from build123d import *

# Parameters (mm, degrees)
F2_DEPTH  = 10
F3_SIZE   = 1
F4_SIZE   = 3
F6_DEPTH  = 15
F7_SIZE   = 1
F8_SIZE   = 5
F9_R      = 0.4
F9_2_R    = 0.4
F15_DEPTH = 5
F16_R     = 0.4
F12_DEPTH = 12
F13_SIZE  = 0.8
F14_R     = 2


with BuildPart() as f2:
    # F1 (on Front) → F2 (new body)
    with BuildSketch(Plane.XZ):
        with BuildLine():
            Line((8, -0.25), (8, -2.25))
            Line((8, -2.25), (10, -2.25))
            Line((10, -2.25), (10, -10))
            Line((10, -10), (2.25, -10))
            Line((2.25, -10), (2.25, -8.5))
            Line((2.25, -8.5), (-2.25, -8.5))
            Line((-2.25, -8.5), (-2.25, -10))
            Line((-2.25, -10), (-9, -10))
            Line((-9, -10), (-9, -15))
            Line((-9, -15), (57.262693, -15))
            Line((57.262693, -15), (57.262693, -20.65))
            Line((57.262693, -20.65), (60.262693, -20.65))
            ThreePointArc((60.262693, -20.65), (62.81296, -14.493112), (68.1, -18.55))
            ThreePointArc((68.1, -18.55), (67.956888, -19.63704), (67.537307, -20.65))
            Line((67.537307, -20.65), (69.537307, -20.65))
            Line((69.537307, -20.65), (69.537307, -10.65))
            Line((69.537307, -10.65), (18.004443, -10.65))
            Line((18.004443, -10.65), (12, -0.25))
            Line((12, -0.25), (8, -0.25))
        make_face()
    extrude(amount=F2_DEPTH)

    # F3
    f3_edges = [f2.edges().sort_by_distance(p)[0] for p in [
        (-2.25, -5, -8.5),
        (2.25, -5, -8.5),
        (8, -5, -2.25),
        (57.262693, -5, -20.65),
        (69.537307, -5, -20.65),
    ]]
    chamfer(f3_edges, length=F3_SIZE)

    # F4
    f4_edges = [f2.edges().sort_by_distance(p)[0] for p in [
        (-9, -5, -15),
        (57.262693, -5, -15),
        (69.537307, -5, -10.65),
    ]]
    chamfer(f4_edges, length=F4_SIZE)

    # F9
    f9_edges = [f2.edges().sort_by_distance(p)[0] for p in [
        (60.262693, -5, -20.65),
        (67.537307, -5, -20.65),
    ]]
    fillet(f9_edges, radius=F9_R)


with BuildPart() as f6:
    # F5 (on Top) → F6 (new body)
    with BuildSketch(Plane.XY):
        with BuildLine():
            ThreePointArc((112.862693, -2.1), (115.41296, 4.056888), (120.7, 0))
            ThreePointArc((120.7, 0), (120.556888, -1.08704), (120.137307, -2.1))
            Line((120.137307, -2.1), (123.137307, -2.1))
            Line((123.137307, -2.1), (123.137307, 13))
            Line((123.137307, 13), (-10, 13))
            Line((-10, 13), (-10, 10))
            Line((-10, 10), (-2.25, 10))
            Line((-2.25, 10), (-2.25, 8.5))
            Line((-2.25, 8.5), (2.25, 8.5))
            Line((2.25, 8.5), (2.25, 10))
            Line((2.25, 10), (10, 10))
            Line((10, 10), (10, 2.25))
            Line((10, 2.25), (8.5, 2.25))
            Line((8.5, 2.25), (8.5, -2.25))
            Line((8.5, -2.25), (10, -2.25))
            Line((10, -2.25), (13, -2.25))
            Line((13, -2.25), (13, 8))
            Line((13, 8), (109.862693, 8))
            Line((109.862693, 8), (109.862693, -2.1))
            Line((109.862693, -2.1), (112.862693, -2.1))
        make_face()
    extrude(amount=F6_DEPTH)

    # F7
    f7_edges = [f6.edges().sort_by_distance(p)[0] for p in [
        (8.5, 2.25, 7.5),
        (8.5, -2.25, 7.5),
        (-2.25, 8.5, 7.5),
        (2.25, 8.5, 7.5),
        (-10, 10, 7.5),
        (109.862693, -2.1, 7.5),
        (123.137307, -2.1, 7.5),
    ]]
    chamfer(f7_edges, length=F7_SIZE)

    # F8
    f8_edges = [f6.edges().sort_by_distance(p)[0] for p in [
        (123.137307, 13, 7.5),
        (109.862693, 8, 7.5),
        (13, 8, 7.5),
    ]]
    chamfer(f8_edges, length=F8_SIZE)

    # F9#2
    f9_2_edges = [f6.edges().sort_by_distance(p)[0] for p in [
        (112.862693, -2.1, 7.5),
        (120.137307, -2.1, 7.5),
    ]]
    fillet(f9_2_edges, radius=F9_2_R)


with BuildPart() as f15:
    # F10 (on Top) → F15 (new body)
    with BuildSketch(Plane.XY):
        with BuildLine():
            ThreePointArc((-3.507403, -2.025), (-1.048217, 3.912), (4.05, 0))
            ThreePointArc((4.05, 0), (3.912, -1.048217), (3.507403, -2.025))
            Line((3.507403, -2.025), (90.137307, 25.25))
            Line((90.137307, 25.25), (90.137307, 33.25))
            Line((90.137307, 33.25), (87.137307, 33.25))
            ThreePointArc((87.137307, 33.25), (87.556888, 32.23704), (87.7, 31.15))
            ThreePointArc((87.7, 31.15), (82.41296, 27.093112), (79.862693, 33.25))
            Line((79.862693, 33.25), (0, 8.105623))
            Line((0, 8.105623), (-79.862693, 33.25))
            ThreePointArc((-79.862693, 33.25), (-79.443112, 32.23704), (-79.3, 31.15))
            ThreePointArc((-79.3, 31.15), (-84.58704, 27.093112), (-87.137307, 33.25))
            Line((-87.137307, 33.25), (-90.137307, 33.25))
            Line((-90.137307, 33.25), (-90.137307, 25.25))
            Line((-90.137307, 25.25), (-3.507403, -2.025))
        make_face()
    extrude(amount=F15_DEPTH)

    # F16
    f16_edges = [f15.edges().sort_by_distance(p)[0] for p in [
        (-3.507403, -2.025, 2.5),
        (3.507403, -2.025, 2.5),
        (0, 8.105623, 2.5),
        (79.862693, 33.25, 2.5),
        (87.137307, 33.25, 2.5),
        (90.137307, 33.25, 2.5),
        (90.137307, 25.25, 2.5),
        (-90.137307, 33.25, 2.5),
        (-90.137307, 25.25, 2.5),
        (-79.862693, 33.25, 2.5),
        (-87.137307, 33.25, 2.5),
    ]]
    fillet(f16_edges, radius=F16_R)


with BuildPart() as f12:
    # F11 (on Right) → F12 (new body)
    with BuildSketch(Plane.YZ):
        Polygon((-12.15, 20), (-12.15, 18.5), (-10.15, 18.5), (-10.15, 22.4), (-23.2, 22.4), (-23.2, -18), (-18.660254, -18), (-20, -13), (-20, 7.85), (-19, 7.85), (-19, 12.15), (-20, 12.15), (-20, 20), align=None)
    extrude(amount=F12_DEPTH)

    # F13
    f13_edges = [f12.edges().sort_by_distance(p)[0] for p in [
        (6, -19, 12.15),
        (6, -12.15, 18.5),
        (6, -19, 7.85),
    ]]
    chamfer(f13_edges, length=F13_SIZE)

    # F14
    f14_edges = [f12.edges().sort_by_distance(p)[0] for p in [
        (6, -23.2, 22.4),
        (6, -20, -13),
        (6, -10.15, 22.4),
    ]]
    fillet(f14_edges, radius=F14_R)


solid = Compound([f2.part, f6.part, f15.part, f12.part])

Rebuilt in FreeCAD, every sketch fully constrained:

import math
import FreeCAD as App
import Part
import Sketcher
Q = App.Units.Quantity


def edges_at(feature, points):
    """Names of the edges that pass closest to the given points."""
    edges = feature.Shape.Edges
    near = lambda p: min(range(len(edges)), key=lambda i: edges[i].distToShape(Part.Vertex(*p))[0])
    return sorted({f"Edge{near(p) + 1}" for p in points})


def add_polygon(sketch, points):
    """Adds a closed chain of lines whose ends are joined by coincident constraints."""
    first, n = sketch.GeometryCount, len(points)
    for a, b in zip(points, points[1:] + points[:1]):
        sketch.addGeometry(Part.LineSegment(App.Vector(*a, 0), App.Vector(*b, 0)), False)
    for i in range(n):
        sketch.addConstraint(Sketcher.Constraint("Coincident", first + i, 2, first + (i + 1) % n, 1))

doc = App.newDocument("Part")
body = doc.addObject("PartDesign::Body", "Body")

sketch1 = body.newObject("Sketcher::SketchObject", "Sketch")
sketch1.AttachmentSupport = (doc.getObject("XZ_Plane"), [""])
sketch1.MapMode = "FlatFace"
sketch1.addGeometry([
    Part.LineSegment(App.Vector(8, -0.25, 0), App.Vector(8, -2.25, 0)),
    Part.LineSegment(App.Vector(8, -2.25, 0), App.Vector(10, -2.25, 0)),
    Part.LineSegment(App.Vector(10, -2.25, 0), App.Vector(10, -10, 0)),
    Part.LineSegment(App.Vector(10, -10, 0), App.Vector(2.25, -10, 0)),
    Part.LineSegment(App.Vector(2.25, -10, 0), App.Vector(2.25, -8.5, 0)),
    Part.LineSegment(App.Vector(2.25, -8.5, 0), App.Vector(-2.25, -8.5, 0)),
    Part.LineSegment(App.Vector(-2.25, -8.5, 0), App.Vector(-2.25, -10, 0)),
    Part.LineSegment(App.Vector(-2.25, -10, 0), App.Vector(-9, -10, 0)),
    Part.LineSegment(App.Vector(-9, -10, 0), App.Vector(-9, -15, 0)),
    Part.LineSegment(App.Vector(-9, -15, 0), App.Vector(57.262693, -15, 0)),
    Part.LineSegment(App.Vector(57.262693, -15, 0), App.Vector(57.262693, -20.65, 0)),
    Part.LineSegment(App.Vector(57.262693, -20.65, 0), App.Vector(60.262693, -20.65, 0)),
    Part.ArcOfCircle(Part.Circle(App.Vector(63.9, -18.55, 0), App.Vector(0, 0, 1), 4.2), math.radians(0.000007), math.radians(209.999992)),
    Part.ArcOfCircle(Part.Circle(App.Vector(63.899983, -18.549996, 0), App.Vector(0, 0, 1), 4.200017), math.radians(-29.999931), math.radians(-0.000054)),
    Part.LineSegment(App.Vector(67.537307, -20.65, 0), App.Vector(69.537307, -20.65, 0)),
    Part.LineSegment(App.Vector(69.537307, -20.65, 0), App.Vector(69.537307, -10.65, 0)),
    Part.LineSegment(App.Vector(69.537307, -10.65, 0), App.Vector(18.004443, -10.65, 0)),
    Part.LineSegment(App.Vector(18.004443, -10.65, 0), App.Vector(12, -0.25, 0)),
    Part.LineSegment(App.Vector(12, -0.25, 0), App.Vector(8, -0.25, 0)),
], False)
sketch1.addConstraint([
    Sketcher.Constraint("Coincident", 0, 2, 1, 1),
    Sketcher.Constraint("Coincident", 1, 2, 2, 1),
    Sketcher.Constraint("Coincident", 2, 2, 3, 1),
    Sketcher.Constraint("Coincident", 3, 2, 4, 1),
    Sketcher.Constraint("Coincident", 4, 2, 5, 1),
    Sketcher.Constraint("Coincident", 5, 2, 6, 1),
    Sketcher.Constraint("Coincident", 6, 2, 7, 1),
    Sketcher.Constraint("Coincident", 7, 2, 8, 1),
    Sketcher.Constraint("Coincident", 8, 2, 9, 1),
    Sketcher.Constraint("Coincident", 9, 2, 10, 1),
    Sketcher.Constraint("Coincident", 10, 2, 11, 1),
    Sketcher.Constraint("Coincident", 11, 2, 12, 2),
    Sketcher.Constraint("Tangent", 12, 1, 13, 2),
    Sketcher.Constraint("Coincident", 13, 1, 14, 1),
    Sketcher.Constraint("Coincident", 14, 2, 15, 1),
    Sketcher.Constraint("Coincident", 15, 2, 16, 1),
    Sketcher.Constraint("Coincident", 16, 2, 17, 1),
    Sketcher.Constraint("Coincident", 17, 2, 18, 1),
    Sketcher.Constraint("Coincident", 18, 2, 0, 1),
    Sketcher.Constraint("Vertical", 0),
    Sketcher.Constraint("Horizontal", 1),
    Sketcher.Constraint("Vertical", 2),
    Sketcher.Constraint("Horizontal", 3),
    Sketcher.Constraint("Vertical", 4),
    Sketcher.Constraint("Horizontal", 5),
    Sketcher.Constraint("Vertical", 6),
    Sketcher.Constraint("Horizontal", 7),
    Sketcher.Constraint("Vertical", 8),
    Sketcher.Constraint("Horizontal", 9),
    Sketcher.Constraint("Vertical", 10),
    Sketcher.Constraint("Horizontal", 11),
    Sketcher.Constraint("Horizontal", 14),
    Sketcher.Constraint("Vertical", 15),
    Sketcher.Constraint("Horizontal", 16),
    Sketcher.Constraint("Horizontal", 18),
    Sketcher.Constraint("Symmetric", 3, 2, 6, 2, -2),
    Sketcher.Constraint("Horizontal", 11, 2, 13, 1),
    Sketcher.Constraint("Equal", 1, 14),
    Sketcher.Constraint("Equal", 14, 0),
    Sketcher.Constraint("Equal", 3, 2),
    Sketcher.Constraint("Radius", 12, 4.2),
    Sketcher.Constraint("DistanceX", 1, 1, 1, 2, 2.0),
    Sketcher.Constraint("DistanceX", 11, 1, 11, 2, 3.0),
    Sketcher.Constraint("DistanceX", 18, 2, 18, 1, 4.0),
    Sketcher.Constraint("DistanceY", 8, 2, 8, 1, 5.0),
    Sketcher.Constraint("DistanceY", 15, 1, 15, 2, 10.0),
    Sketcher.Constraint("Angle", 17, Q("120.000001 deg")),
    Sketcher.Constraint("DistanceX", 5, 2, 5, 1, 4.5),
    Sketcher.Constraint("DistanceY", 4, 1, 4, 2, 1.5),
    Sketcher.Constraint("DistanceX", -1, 1, 0, 2, 8.0),
    Sketcher.Constraint("DistanceY", 2, 2, -1, 1, 10.0),
    Sketcher.Constraint("DistanceX", 7, 2, -1, 1, 9.0),
    Sketcher.Constraint("DistanceY", 10, 2, 10, 1, 5.65),
    Sketcher.Constraint("DistanceX", -1, 1, 12, 3, 63.9),
    Sketcher.Constraint("DistanceY", 12, 3, 0, 2, 16.3),
    Sketcher.Constraint("DistanceY", 11, 2, 12, 1, 2.1),
    Sketcher.Constraint("Radius", 13, 4.200017),
])
pad1 = body.newObject("PartDesign::Pad", "Pad")
pad1.Profile = sketch1
pad1.Length = 10
doc.recompute()

chamfer = body.newObject("PartDesign::Chamfer", "Chamfer")
chamfer.Base = (pad1, edges_at(pad1, [
    (-2.25, -5, -8.5),
    (2.25, -5, -8.5),
    (8, -5, -2.25),
    (57.263, -5, -20.65),
    (69.537, -5, -20.65),
]))
chamfer.Size = 1
doc.recompute()

chamfer2 = body.newObject("PartDesign::Chamfer", "Chamfer001")
chamfer2.Base = (chamfer, edges_at(chamfer, [(-9, -5, -15), (57.263, -5, -15), (69.537, -5, -10.65)]))
chamfer2.Size = 3
doc.recompute()

fillet = body.newObject("PartDesign::Fillet", "Fillet")
fillet.Base = (chamfer2, edges_at(chamfer2, [(60.263, -5, -20.65), (67.537, -5, -20.65)]))
fillet.Radius = 0.4
body2 = doc.addObject("PartDesign::Body", "Body001")

sketch2 = body2.newObject("Sketcher::SketchObject", "Sketch001")
sketch2.AttachmentSupport = (doc.getObject("XY_Plane001"), [""])
sketch2.MapMode = "FlatFace"
sketch2.addGeometry([
    Part.ArcOfCircle(Part.Circle(App.Vector(116.5, 0, 0), App.Vector(0, 0, 1), 4.2), math.radians(0.000007), math.radians(209.999992)),
    Part.ArcOfCircle(Part.Circle(App.Vector(116.499983, 0.000004, 0), App.Vector(0, 0, 1), 4.200017), math.radians(-29.999931), math.radians(-0.000054)),
    Part.LineSegment(App.Vector(120.137307, -2.1, 0), App.Vector(123.137307, -2.1, 0)),
    Part.LineSegment(App.Vector(123.137307, -2.1, 0), App.Vector(123.137307, 13, 0)),
    Part.LineSegment(App.Vector(123.137307, 13, 0), App.Vector(-10, 13, 0)),
    Part.LineSegment(App.Vector(-10, 13, 0), App.Vector(-10, 10, 0)),
    Part.LineSegment(App.Vector(-10, 10, 0), App.Vector(-2.25, 10, 0)),
    Part.LineSegment(App.Vector(-2.25, 10, 0), App.Vector(-2.25, 8.5, 0)),
    Part.LineSegment(App.Vector(-2.25, 8.5, 0), App.Vector(2.25, 8.5, 0)),
    Part.LineSegment(App.Vector(2.25, 8.5, 0), App.Vector(2.25, 10, 0)),
    Part.LineSegment(App.Vector(2.25, 10, 0), App.Vector(10, 10, 0)),
    Part.LineSegment(App.Vector(10, 10, 0), App.Vector(10, 2.25, 0)),
    Part.LineSegment(App.Vector(10, 2.25, 0), App.Vector(8.5, 2.25, 0)),
    Part.LineSegment(App.Vector(8.5, 2.25, 0), App.Vector(8.5, -2.25, 0)),
    Part.LineSegment(App.Vector(8.5, -2.25, 0), App.Vector(13, -2.25, 0)),
    Part.LineSegment(App.Vector(13, -2.25, 0), App.Vector(13, 8, 0)),
    Part.LineSegment(App.Vector(13, 8, 0), App.Vector(109.862693, 8, 0)),
    Part.LineSegment(App.Vector(109.862693, 8, 0), App.Vector(109.862693, -2.1, 0)),
    Part.LineSegment(App.Vector(109.862693, -2.1, 0), App.Vector(112.862693, -2.1, 0)),
], False)
sketch2.addConstraint([
    Sketcher.Constraint("Tangent", 0, 1, 1, 2),
    Sketcher.Constraint("Coincident", 1, 1, 2, 1),
    Sketcher.Constraint("Coincident", 2, 2, 3, 1),
    Sketcher.Constraint("Coincident", 3, 2, 4, 1),
    Sketcher.Constraint("Coincident", 4, 2, 5, 1),
    Sketcher.Constraint("Coincident", 5, 2, 6, 1),
    Sketcher.Constraint("Coincident", 6, 2, 7, 1),
    Sketcher.Constraint("Coincident", 7, 2, 8, 1),
    Sketcher.Constraint("Coincident", 8, 2, 9, 1),
    Sketcher.Constraint("Coincident", 9, 2, 10, 1),
    Sketcher.Constraint("Coincident", 10, 2, 11, 1),
    Sketcher.Constraint("Coincident", 11, 2, 12, 1),
    Sketcher.Constraint("Coincident", 12, 2, 13, 1),
    Sketcher.Constraint("Coincident", 13, 2, 14, 1),
    Sketcher.Constraint("Coincident", 14, 2, 15, 1),
    Sketcher.Constraint("Coincident", 15, 2, 16, 1),
    Sketcher.Constraint("Coincident", 16, 2, 17, 1),
    Sketcher.Constraint("Coincident", 17, 2, 18, 1),
    Sketcher.Constraint("Coincident", 18, 2, 0, 2),
    Sketcher.Constraint("Horizontal", 2),
    Sketcher.Constraint("Vertical", 3),
    Sketcher.Constraint("Horizontal", 4),
    Sketcher.Constraint("Vertical", 5),
    Sketcher.Constraint("Horizontal", 6),
    Sketcher.Constraint("Vertical", 7),
    Sketcher.Constraint("Horizontal", 8),
    Sketcher.Constraint("Vertical", 9),
    Sketcher.Constraint("Horizontal", 10),
    Sketcher.Constraint("Vertical", 11),
    Sketcher.Constraint("Horizontal", 12),
    Sketcher.Constraint("Vertical", 13),
    Sketcher.Constraint("Horizontal", 14),
    Sketcher.Constraint("Vertical", 15),
    Sketcher.Constraint("Horizontal", 16),
    Sketcher.Constraint("Vertical", 17),
    Sketcher.Constraint("Horizontal", 18),
    Sketcher.Constraint("Symmetric", 6, 2, 9, 2, -2),
    Sketcher.Constraint("PointOnObject", 0, 3, -1),
    Sketcher.Constraint("PointOnObject", 0, 1, -1),
    Sketcher.Constraint("Horizontal", 2, 2, 17, 2),
    Sketcher.Constraint("Equal", 6, 10),
    Sketcher.Constraint("Equal", 8, 14),
    Sketcher.Constraint("Equal", 2, 18),
    Sketcher.Constraint("Equal", 18, 5),
    Sketcher.Constraint("Equal", 12, 7),
    Sketcher.Constraint("Equal", 10, 11),
    Sketcher.Constraint("Equal", 14, 13),
    Sketcher.Constraint("Radius", 0, 4.2),
    Sketcher.Constraint("DistanceX", 2, 1, 2, 2, 3.0),
    Sketcher.Constraint("DistanceX", 8, 1, 8, 2, 4.5),
    Sketcher.Constraint("DistanceX", 12, 2, 12, 1, 1.5),
    Sketcher.Constraint("DistanceY", 3, 1, 3, 2, 15.1),
    Sketcher.Constraint("DistanceY", 17, 2, 17, 1, 10.1),
    Sketcher.Constraint("DistanceY", -1, 1, 3, 2, 13.0),
    Sketcher.Constraint("DistanceX", 4, 2, -1, 1, 10.0),
    Sketcher.Constraint("DistanceX", -1, 1, 0, 3, 116.5),
    Sketcher.Constraint("Radius", 1, 4.200017),
])
pad2 = body2.newObject("PartDesign::Pad", "Pad001")
pad2.Profile = sketch2
pad2.Length = 15
doc.recompute()

chamfer3 = body2.newObject("PartDesign::Chamfer", "Chamfer002")
chamfer3.Base = (pad2, edges_at(pad2, [
    (8.5, 2.25, 7.5),
    (8.5, -2.25, 7.5),
    (-2.25, 8.5, 7.5),
    (2.25, 8.5, 7.5),
    (-10, 10, 7.5),
    (109.863, -2.1, 7.5),
    (123.137, -2.1, 7.5),
]))
chamfer3.Size = 1
doc.recompute()

chamfer4 = body2.newObject("PartDesign::Chamfer", "Chamfer003")
chamfer4.Base = (chamfer3, edges_at(chamfer3, [(123.137, 13, 7.5), (109.863, 8, 7.5), (13, 8, 7.5)]))
chamfer4.Size = 5
doc.recompute()

fillet2 = body2.newObject("PartDesign::Fillet", "Fillet001")
fillet2.Base = (chamfer4, edges_at(chamfer4, [(112.863, -2.1, 7.5), (120.137, -2.1, 7.5)]))
fillet2.Radius = 0.4
body3 = doc.addObject("PartDesign::Body", "Body002")

sketch3 = body3.newObject("Sketcher::SketchObject", "Sketch002")
sketch3.AttachmentSupport = (doc.getObject("XY_Plane002"), [""])
sketch3.MapMode = "FlatFace"
sketch3.addGeometry([
    Part.ArcOfCircle(Part.Circle(App.Vector(0, 0, 0), App.Vector(0, 0, 1), 4.05), math.radians(-0.000003), math.radians(210.000003)),
    Part.ArcOfCircle(Part.Circle(App.Vector(0.000009, -0.000003, 0), App.Vector(0, 0, 1), 4.049991), math.radians(-30.000029), math.radians(0.000035)),
    Part.LineSegment(App.Vector(3.507403, -2.025, 0), App.Vector(90.137307, 25.25, 0)),
    Part.LineSegment(App.Vector(90.137307, 25.25, 0), App.Vector(90.137307, 33.25, 0)),
    Part.LineSegment(App.Vector(90.137307, 33.25, 0), App.Vector(87.137307, 33.25, 0)),
    Part.ArcOfCircle(Part.Circle(App.Vector(83.499983, 31.149996, 0), App.Vector(0, 0, 1), 4.200017), math.radians(0.000054), math.radians(29.999931)),
    Part.ArcOfCircle(Part.Circle(App.Vector(83.5, 31.15, 0), App.Vector(0, 0, 1), 4.2), math.radians(150.000008), math.radians(359.999993)),
    Part.LineSegment(App.Vector(79.862693, 33.25, 0), App.Vector(0, 8.105623, 0)),
    Part.LineSegment(App.Vector(0, 8.105623, 0), App.Vector(-79.862693, 33.25, 0)),
    Part.ArcOfCircle(Part.Circle(App.Vector(-83.500017, 31.149996, 0), App.Vector(0, 0, 1), 4.200017), math.radians(0.000054), math.radians(29.999931)),
    Part.ArcOfCircle(Part.Circle(App.Vector(-83.5, 31.15, 0), App.Vector(0, 0, 1), 4.2), math.radians(150.000008), math.radians(359.999993)),
    Part.LineSegment(App.Vector(-87.137307, 33.25, 0), App.Vector(-90.137307, 33.25, 0)),
    Part.LineSegment(App.Vector(-90.137307, 33.25, 0), App.Vector(-90.137307, 25.25, 0)),
    Part.LineSegment(App.Vector(-90.137307, 25.25, 0), App.Vector(-3.507403, -2.025, 0)),
], False)
sketch3.addConstraint([
    Sketcher.Constraint("Tangent", 0, 1, 1, 2),
    Sketcher.Constraint("Coincident", 1, 1, 2, 1),
    Sketcher.Constraint("Coincident", 2, 2, 3, 1),
    Sketcher.Constraint("Coincident", 3, 2, 4, 1),
    Sketcher.Constraint("Coincident", 4, 2, 5, 2),
    Sketcher.Constraint("Tangent", 5, 1, 6, 2),
    Sketcher.Constraint("Coincident", 6, 1, 7, 1),
    Sketcher.Constraint("Coincident", 7, 2, 8, 1),
    Sketcher.Constraint("Coincident", 8, 2, 9, 2),
    Sketcher.Constraint("Tangent", 9, 1, 10, 2),
    Sketcher.Constraint("Coincident", 10, 1, 11, 1),
    Sketcher.Constraint("Coincident", 11, 2, 12, 1),
    Sketcher.Constraint("Coincident", 12, 2, 13, 1),
    Sketcher.Constraint("Coincident", 13, 2, 0, 2),
    Sketcher.Constraint("Vertical", 3),
    Sketcher.Constraint("Horizontal", 4),
    Sketcher.Constraint("Horizontal", 11),
    Sketcher.Constraint("Vertical", 12),
    Sketcher.Constraint("Coincident", 0, 3, -1, 1),
    Sketcher.Constraint("Equal", 5, 9),
    Sketcher.Constraint("Equal", 6, 10),
    Sketcher.Constraint("Symmetric", 6, 3, 10, 3, -2),
    Sketcher.Constraint("Symmetric", 6, 1, 8, 2, -2),
    Sketcher.Constraint("Symmetric", 3, 2, 11, 2, -2),
    Sketcher.Constraint("Symmetric", 1, 1, 13, 2, -2),
    Sketcher.Constraint("PointOnObject", 0, 1, -1),
    Sketcher.Constraint("PointOnObject", 7, 2, -2),
    Sketcher.Constraint("Parallel", 2, 7),
    Sketcher.Constraint("Parallel", 8, 13),
    Sketcher.Constraint("Horizontal", 10, 3, 5, 1),
    Sketcher.Constraint("Horizontal", 4, 2, 6, 1),
    Sketcher.Constraint("Horizontal", 5, 1, 9, 1),
    Sketcher.Constraint("Radius", 6, 4.2),
    Sketcher.Constraint("DistanceX", 4, 2, 4, 1, 3.0),
    Sketcher.Constraint("DistanceY", 3, 1, 3, 2, 8.0),
    Sketcher.Constraint("Radius", 0, 4.05),
    Sketcher.Constraint("DistanceX", 9, 3, 5, 3, 167.0),
    Sketcher.Constraint("DistanceY", 2, 2, 6, 3, 5.9),
    Sketcher.Constraint("DistanceY", -1, 1, 6, 3, 31.15),
    Sketcher.Constraint("DistanceY", 1, 1, -1, 1, 2.025),
])
pad3 = body3.newObject("PartDesign::Pad", "Pad002")
pad3.Profile = sketch3
pad3.Length = 5
doc.recompute()

fillet3 = body3.newObject("PartDesign::Fillet", "Fillet002")
fillet3.Base = (pad3, edges_at(pad3, [
    (-3.507, -2.025, 2.5),
    (3.507, -2.025, 2.5),
    (0, 8.106, 2.5),
    (79.863, 33.25, 2.5),
    (87.137, 33.25, 2.5),
    (90.137, 33.25, 2.5),
    (90.137, 25.25, 2.5),
    (-90.137, 33.25, 2.5),
    (-90.137, 25.25, 2.5),
    (-79.863, 33.25, 2.5),
    (-87.137, 33.25, 2.5),
]))
fillet3.Radius = 0.4
body4 = doc.addObject("PartDesign::Body", "Body003")

sketch4 = body4.newObject("Sketcher::SketchObject", "Sketch003")
sketch4.AttachmentSupport = (doc.getObject("YZ_Plane003"), [""])
sketch4.MapMode = "FlatFace"
add_polygon(sketch4, [(-12.15, 20), (-12.15, 18.5), (-10.15, 18.5), (-10.15, 22.4), (-23.2, 22.4), (-23.2, -18), (-18.660254, -18), (-20, -13), (-20, 7.85), (-19, 7.85), (-19, 12.15), (-20, 12.15), (-20, 20)])
sketch4.addConstraint([
    Sketcher.Constraint("Vertical", 0),
    Sketcher.Constraint("Horizontal", 1),
    Sketcher.Constraint("Vertical", 2),
    Sketcher.Constraint("Horizontal", 3),
    Sketcher.Constraint("Vertical", 4),
    Sketcher.Constraint("Horizontal", 5),
    Sketcher.Constraint("Vertical", 7),
    Sketcher.Constraint("Horizontal", 8),
    Sketcher.Constraint("Vertical", 9),
    Sketcher.Constraint("Horizontal", 10),
    Sketcher.Constraint("Vertical", 11),
    Sketcher.Constraint("Horizontal", 12),
    Sketcher.Constraint("Vertical", 7, 2, 10, 2),
    Sketcher.Constraint("Equal", 12, 11),
    Sketcher.Constraint("DistanceX", 1, 1, 1, 2, 2.0),
    Sketcher.Constraint("DistanceX", 8, 1, 8, 2, 1.0),
    Sketcher.Constraint("Angle", 6, Q("105 deg")),
    Sketcher.Constraint("DistanceY", 0, 2, 0, 1, 1.5),
    Sketcher.Constraint("DistanceY", 2, 1, 2, 2, 3.9),
    Sketcher.Constraint("DistanceY", 4, 2, 4, 1, 40.4),
    Sketcher.Constraint("DistanceY", 9, 1, 9, 2, 4.3),
    Sketcher.Constraint("DistanceY", 4, 2, -1, 1, 18.0),
    Sketcher.Constraint("DistanceX", 6, 2, -1, 1, 20.0),
    Sketcher.Constraint("DistanceY", 6, 2, -1, 1, 13.0),
    Sketcher.Constraint("DistanceX", 3, 2, 3, 1, 13.05),
    Sketcher.Constraint("DistanceX", 12, 1, 12, 2, 7.85),
])
pad4 = body4.newObject("PartDesign::Pad", "Pad003")
pad4.Profile = sketch4
pad4.Length = 12
doc.recompute()

chamfer5 = body4.newObject("PartDesign::Chamfer", "Chamfer004")
chamfer5.Base = (pad4, edges_at(pad4, [(6, -19, 12.15), (6, -12.15, 18.5), (6, -19, 7.85)]))
chamfer5.Size = 0.8
doc.recompute()

fillet4 = body4.newObject("PartDesign::Fillet", "Fillet003")
fillet4.Base = (chamfer5, edges_at(chamfer5, [(6, -23.2, 22.4), (6, -20, -13), (6, -10.15, 22.4)]))
fillet4.Radius = 2

doc.recompute()
